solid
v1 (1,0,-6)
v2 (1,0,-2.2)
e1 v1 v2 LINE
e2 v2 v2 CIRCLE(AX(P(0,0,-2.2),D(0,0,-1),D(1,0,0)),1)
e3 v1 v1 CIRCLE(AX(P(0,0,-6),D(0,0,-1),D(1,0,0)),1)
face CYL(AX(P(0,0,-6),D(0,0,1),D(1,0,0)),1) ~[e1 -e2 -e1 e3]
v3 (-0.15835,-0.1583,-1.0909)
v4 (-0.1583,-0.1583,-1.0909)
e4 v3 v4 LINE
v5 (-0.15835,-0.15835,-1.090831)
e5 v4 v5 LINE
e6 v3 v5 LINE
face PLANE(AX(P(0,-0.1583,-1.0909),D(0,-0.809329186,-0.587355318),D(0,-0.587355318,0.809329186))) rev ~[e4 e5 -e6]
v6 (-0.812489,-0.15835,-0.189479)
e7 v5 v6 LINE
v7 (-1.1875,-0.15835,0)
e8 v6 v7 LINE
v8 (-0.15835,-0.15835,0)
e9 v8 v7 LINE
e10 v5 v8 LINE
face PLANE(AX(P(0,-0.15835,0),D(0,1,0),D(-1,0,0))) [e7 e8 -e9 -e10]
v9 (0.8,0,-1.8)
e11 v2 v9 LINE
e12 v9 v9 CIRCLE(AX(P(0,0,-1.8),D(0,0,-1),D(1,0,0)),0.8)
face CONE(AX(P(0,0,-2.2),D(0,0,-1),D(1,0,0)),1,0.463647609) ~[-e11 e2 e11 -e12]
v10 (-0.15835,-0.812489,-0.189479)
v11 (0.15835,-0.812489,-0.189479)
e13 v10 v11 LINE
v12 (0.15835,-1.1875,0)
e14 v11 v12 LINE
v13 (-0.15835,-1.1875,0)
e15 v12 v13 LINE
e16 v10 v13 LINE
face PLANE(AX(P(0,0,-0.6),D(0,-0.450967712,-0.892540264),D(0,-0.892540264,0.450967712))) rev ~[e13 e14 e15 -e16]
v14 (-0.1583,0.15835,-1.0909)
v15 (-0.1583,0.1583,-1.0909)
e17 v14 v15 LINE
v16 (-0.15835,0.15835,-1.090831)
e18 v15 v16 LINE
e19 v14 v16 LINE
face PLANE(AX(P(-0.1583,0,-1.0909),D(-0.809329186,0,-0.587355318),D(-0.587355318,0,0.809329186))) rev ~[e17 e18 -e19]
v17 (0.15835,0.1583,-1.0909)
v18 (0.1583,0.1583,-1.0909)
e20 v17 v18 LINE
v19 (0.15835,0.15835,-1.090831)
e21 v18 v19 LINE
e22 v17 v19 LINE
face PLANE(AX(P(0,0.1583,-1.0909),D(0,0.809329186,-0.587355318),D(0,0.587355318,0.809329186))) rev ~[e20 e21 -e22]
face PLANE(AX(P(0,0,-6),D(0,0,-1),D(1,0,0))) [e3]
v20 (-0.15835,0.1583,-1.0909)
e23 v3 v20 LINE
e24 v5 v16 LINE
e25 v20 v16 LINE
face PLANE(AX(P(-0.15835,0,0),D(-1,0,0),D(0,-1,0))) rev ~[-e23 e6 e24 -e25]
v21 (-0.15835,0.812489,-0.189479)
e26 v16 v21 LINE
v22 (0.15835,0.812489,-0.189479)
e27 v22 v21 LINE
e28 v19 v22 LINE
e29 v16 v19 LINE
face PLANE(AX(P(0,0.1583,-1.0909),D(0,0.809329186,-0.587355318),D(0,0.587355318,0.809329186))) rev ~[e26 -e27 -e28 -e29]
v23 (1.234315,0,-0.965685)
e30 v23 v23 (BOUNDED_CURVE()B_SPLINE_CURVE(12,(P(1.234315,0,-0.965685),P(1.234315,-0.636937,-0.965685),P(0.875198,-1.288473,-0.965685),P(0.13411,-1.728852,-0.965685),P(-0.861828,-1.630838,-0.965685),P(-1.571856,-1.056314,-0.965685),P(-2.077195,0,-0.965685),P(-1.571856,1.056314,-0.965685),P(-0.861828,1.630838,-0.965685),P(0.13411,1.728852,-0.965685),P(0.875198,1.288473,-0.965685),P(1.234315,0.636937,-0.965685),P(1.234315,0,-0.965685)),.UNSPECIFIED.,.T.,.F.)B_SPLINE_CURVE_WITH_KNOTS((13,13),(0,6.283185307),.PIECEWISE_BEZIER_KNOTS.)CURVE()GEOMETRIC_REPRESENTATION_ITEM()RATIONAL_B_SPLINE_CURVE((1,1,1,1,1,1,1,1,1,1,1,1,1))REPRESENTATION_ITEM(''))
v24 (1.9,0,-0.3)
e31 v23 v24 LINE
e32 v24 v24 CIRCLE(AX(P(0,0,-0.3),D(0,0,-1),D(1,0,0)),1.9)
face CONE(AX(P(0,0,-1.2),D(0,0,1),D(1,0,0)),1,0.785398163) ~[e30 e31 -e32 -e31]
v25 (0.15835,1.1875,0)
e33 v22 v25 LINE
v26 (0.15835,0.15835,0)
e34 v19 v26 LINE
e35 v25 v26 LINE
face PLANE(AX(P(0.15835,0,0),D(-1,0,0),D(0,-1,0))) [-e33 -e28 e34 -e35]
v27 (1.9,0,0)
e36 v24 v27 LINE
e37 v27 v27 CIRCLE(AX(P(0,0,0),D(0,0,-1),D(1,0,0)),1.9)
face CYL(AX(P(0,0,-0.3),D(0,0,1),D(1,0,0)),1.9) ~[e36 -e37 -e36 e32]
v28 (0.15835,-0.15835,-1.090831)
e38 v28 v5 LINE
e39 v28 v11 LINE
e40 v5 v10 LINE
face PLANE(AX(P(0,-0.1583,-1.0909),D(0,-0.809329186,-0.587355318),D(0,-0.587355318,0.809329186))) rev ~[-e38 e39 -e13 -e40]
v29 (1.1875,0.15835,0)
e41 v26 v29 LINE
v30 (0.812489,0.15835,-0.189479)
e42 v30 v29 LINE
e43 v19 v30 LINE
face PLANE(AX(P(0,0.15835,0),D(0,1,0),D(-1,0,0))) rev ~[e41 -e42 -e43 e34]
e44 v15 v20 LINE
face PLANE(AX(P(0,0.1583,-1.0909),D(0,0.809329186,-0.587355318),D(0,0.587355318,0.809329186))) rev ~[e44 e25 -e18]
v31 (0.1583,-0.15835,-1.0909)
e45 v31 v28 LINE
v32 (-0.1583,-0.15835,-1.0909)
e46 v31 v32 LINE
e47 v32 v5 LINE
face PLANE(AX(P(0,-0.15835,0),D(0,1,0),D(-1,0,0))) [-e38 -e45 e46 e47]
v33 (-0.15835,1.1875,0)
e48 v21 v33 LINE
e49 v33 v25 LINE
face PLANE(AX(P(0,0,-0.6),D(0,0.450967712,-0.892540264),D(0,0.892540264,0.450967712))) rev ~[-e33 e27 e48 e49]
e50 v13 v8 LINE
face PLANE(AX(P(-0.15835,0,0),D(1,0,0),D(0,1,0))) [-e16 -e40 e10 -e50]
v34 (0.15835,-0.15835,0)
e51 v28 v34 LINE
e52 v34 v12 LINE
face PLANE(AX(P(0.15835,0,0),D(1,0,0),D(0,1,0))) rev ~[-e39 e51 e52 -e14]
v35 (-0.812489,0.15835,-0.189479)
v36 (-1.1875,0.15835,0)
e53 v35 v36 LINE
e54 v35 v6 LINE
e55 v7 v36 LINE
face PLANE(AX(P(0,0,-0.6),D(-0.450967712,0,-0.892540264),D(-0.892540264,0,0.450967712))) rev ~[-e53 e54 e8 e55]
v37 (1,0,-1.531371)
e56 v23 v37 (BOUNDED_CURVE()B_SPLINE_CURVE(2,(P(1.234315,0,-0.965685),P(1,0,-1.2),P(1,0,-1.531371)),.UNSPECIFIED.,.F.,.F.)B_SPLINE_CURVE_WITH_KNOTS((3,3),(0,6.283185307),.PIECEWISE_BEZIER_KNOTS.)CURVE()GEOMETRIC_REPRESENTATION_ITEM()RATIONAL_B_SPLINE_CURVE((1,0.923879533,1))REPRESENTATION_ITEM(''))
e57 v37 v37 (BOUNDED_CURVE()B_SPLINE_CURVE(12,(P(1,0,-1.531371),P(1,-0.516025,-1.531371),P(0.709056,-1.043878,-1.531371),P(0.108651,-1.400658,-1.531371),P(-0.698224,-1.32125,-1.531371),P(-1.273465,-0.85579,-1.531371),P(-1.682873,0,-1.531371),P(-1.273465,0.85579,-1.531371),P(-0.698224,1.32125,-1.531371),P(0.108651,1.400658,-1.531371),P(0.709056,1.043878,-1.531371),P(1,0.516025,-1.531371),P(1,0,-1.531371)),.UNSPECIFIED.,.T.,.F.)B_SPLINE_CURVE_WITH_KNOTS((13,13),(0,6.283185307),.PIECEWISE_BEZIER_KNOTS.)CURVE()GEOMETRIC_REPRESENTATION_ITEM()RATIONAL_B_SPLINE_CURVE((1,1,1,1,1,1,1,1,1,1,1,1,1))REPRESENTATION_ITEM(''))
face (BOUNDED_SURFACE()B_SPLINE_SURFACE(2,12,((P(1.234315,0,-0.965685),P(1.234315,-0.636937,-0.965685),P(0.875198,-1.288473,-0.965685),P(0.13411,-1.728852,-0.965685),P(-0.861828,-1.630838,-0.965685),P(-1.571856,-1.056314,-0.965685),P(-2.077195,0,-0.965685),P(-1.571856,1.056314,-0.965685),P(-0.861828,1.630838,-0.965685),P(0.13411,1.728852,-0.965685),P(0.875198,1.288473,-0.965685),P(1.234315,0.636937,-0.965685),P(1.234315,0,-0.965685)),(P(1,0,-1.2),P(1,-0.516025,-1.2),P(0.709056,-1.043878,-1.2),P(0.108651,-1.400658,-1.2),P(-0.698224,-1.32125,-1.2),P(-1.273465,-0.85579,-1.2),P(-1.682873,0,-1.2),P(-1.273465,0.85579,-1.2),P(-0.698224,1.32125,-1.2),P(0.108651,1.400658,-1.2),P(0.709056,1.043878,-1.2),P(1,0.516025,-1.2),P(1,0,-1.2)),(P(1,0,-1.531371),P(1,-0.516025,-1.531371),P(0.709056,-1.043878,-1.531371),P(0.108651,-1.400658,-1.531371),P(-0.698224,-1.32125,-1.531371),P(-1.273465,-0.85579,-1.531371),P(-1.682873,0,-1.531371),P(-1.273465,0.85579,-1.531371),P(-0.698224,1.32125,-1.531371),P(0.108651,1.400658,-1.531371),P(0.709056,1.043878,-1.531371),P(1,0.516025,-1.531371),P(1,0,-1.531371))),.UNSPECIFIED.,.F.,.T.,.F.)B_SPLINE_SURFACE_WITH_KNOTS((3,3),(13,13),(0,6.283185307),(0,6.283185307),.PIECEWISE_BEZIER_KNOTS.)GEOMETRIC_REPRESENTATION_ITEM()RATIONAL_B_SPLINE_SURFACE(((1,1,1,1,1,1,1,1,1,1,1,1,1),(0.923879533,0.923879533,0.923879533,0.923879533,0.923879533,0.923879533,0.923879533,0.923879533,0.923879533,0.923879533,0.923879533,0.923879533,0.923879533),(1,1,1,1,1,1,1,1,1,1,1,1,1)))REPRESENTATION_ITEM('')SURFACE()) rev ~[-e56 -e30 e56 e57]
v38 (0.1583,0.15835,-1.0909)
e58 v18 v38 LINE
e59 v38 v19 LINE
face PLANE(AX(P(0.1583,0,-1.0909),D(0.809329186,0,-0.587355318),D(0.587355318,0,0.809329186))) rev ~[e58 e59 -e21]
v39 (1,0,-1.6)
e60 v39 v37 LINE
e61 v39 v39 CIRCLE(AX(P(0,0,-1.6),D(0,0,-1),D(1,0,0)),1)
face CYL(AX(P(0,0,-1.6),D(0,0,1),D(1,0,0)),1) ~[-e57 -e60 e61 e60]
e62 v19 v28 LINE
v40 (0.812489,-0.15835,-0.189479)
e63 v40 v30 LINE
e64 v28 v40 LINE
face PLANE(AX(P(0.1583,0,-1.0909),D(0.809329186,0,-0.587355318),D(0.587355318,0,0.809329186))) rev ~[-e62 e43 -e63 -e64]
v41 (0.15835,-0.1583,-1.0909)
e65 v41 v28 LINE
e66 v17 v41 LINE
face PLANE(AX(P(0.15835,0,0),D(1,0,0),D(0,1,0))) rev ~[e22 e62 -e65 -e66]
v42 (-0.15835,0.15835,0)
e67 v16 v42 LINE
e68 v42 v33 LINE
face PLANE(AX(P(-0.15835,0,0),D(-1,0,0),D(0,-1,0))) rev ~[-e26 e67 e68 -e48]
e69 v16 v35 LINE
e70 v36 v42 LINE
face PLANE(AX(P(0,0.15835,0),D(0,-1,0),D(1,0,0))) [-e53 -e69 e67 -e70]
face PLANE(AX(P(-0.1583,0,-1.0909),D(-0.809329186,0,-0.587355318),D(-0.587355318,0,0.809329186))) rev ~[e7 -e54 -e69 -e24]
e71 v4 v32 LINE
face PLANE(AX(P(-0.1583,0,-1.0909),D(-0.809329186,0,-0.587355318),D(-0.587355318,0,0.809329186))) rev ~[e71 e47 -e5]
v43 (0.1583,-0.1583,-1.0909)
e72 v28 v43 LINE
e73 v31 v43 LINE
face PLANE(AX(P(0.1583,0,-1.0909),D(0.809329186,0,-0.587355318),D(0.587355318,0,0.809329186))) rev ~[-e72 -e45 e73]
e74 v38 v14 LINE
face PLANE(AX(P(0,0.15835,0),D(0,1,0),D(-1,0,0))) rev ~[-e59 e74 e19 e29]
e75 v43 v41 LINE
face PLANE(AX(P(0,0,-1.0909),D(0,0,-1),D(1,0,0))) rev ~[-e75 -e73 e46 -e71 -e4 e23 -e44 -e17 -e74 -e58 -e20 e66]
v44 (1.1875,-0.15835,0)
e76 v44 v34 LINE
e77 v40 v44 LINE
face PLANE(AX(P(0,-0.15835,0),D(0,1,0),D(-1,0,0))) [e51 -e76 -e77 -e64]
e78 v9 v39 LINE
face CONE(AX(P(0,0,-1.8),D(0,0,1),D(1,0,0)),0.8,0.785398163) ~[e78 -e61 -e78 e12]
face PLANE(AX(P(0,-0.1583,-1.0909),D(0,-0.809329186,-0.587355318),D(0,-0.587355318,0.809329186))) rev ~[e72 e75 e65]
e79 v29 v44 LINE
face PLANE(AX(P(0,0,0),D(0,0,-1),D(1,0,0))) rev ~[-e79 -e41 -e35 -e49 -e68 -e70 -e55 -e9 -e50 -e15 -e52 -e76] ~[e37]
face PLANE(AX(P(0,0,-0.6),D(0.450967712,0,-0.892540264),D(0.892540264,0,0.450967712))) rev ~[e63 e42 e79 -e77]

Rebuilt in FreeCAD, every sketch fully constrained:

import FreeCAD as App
import Part
import Sketcher
Q = App.Units.Quantity


def edges_at(feature, points):
    """Names of the edges that pass closest to the given points."""
    edges = feature.Shape.Edges
    near = lambda p: min(range(len(edges)), key=lambda i: edges[i].distToShape(Part.Vertex(*p))[0])
    return sorted({f"Edge{near(p) + 1}" for p in points})

doc = App.newDocument("Part")
params = doc.addObject("Spreadsheet::Sheet", "Params")
for row, (alias, value) in enumerate([
    ("sketch1_width", "1 mm"),
    ("sketch1_height", "6 mm"),
    ("sketch1_width2", "1.9 mm"),
    ("sketch1_height2", "0.4 mm"),
    ("revolution_angle", "360 deg"),
    ("sketch2_width", "0.95 mm"),
    ("pocket1_length", "0.3167 mm"),
    ("sketch3_height", "0.6 mm"),
    ("pocket2_length", "0.3167 mm"),
    ("fillet_radius", "0.8 mm"),
], start=1):
    params.set(f"A{row}", alias)
    params.set(f"B{row}", "=" + value)
    params.setAlias(f"B{row}", alias)

body = doc.addObject("PartDesign::Body", "Body")

# Sketch on XZ plane
sketch1 = body.newObject("Sketcher::SketchObject", "Sketch")
sketch1.AttachmentSupport = (doc.getObject("XZ_Plane"), [""])
sketch1.MapMode = "FlatFace"
sketch1.addGeometry([
    Part.LineSegment(App.Vector(0, 0, 0), App.Vector(1.9, 0, 0)),  # 0
    Part.LineSegment(App.Vector(1.9, 0, 0), App.Vector(1.9, -0.3, 0)),  # 1
    Part.LineSegment(App.Vector(1.9, -0.3, 0), App.Vector(1, -1.2, 0)),  # 2
    Part.LineSegment(App.Vector(1, -1.2, 0), App.Vector(1, -1.6, 0)),  # 3
    Part.LineSegment(App.Vector(1, -1.6, 0), App.Vector(0.8, -1.8, 0)),  # 4
    Part.LineSegment(App.Vector(0.8, -1.8, 0), App.Vector(1, -2.2, 0)),  # 5
    Part.LineSegment(App.Vector(1, -2.2, 0), App.Vector(1, -6, 0)),  # 6
    Part.LineSegment(App.Vector(1, -6, 0), App.Vector(0, -6, 0)),  # 7
    Part.LineSegment(App.Vector(0, -6, 0), App.Vector(0, 0, 0)),  # 8
], False)
sketch1.addConstraint([
    Sketcher.Constraint("Coincident", 0, 2, 1, 1),
    Sketcher.Constraint("Coincident", 1, 2, 2, 1),
    Sketcher.Constraint("Coincident", 2, 2, 3, 1),
    Sketcher.Constraint("Coincident", 3, 2, 4, 1),
    Sketcher.Constraint("Coincident", 4, 2, 5, 1),
    Sketcher.Constraint("Coincident", 5, 2, 6, 1),
    Sketcher.Constraint("Coincident", 6, 2, 7, 1),
    Sketcher.Constraint("Coincident", 7, 2, 8, 1),
    Sketcher.Constraint("Coincident", 8, 2, 0, 1),
    Sketcher.Constraint("Horizontal", 0),
    Sketcher.Constraint("Vertical", 1),
    Sketcher.Constraint("Vertical", 3),
    Sketcher.Constraint("Vertical", 6),
    Sketcher.Constraint("Horizontal", 7),
    Sketcher.Constraint("Vertical", 8),
    Sketcher.Constraint("Coincident", 8, 2, -1, 1),
    Sketcher.Constraint("Parallel", 2, 4),
    Sketcher.Constraint("Vertical", 3, 2, 5, 2),
    Sketcher.Constraint("DistanceX", 7, 2, 7, 1, Q("1 mm")),
    Sketcher.Constraint("DistanceY", 8, 1, 8, 2, Q("6 mm")),
    Sketcher.Constraint("Angle", 2, Q("-135 deg")),
    Sketcher.Constraint("DistanceX", 0, 1, 0, 2, Q("1.9 mm")),
    Sketcher.Constraint("DistanceY", 3, 2, 3, 1, Q("0.4 mm")),
    Sketcher.Constraint("DistanceY", 5, 2, 2, 2, Q("1 mm")),
    Sketcher.Constraint("DistanceY", 2, 2, -1, 1, Q("1.2 mm")),
    Sketcher.Constraint("DistanceX", -1, 1, 4, 2, Q("0.8 mm")),
])
sketch1.setExpression("Constraints[18]", "Params.sketch1_width")
sketch1.setExpression("Constraints[19]", "Params.sketch1_height")
sketch1.setExpression("Constraints[21]", "Params.sketch1_width2")
sketch1.setExpression("Constraints[22]", "Params.sketch1_height2")
revolution = body.newObject("PartDesign::Revolution", "Revolution")
revolution.Profile = sketch1
revolution.ReferenceAxis = (sketch1, ["V_Axis"])
revolution.setExpression("Angle", "Params.revolution_angle")

# Sketch on XZ plane
sketch2 = body.newObject("Sketcher::SketchObject", "Sketch001")
sketch2.AttachmentSupport = (doc.getObject("XZ_Plane"), [""])
sketch2.MapMode = "FlatFace"
sketch2.addGeometry([
    Part.LineSegment(App.Vector(0, 0, 0), App.Vector(0.95, 0, 0)),
    Part.LineSegment(App.Vector(0.95, 0, 0), App.Vector(0.1583, -1.0909, 0)),
    Part.LineSegment(App.Vector(0.1583, -1.0909, 0), App.Vector(0, -1.0909, 0)),
    Part.LineSegment(App.Vector(0, -1.0909, 0), App.Vector(0, 0, 0)),
], False)
sketch2.addConstraint([
    Sketcher.Constraint("Coincident", 0, 2, 1, 1),
    Sketcher.Constraint("Coincident", 1, 2, 2, 1),
    Sketcher.Constraint("Coincident", 2, 2, 3, 1),
    Sketcher.Constraint("Coincident", 3, 2, 0, 1),
    Sketcher.Constraint("Horizontal", 0),
    Sketcher.Constraint("Horizontal", 2),
    Sketcher.Constraint("Vertical", 3),
    Sketcher.Constraint("Coincident", 3, 2, -1, 1),
    Sketcher.Constraint("DistanceX", 0, 1, 0, 2, Q("0.95 mm")),
    Sketcher.Constraint("DistanceY", 3, 1, 3, 2, Q("1.091 mm")),
    Sketcher.Constraint("DistanceX", 2, 2, 2, 1, Q("0.1583 mm")),
])
sketch2.setExpression("Constraints[8]", "Params.sketch2_width")
pocket1 = body.newObject("PartDesign::Pocket", "Pocket")
pocket1.Profile = sketch2
pocket1.setExpression("Length", "Params.pocket1_length")
pocket1.Midplane = True
doc.recompute()

polarpattern = body.newObject("PartDesign::PolarPattern", "PolarPattern")
polarpattern.Originals = [pocket1]
polarpattern.Axis = (doc.getObject("Z_Axis"), [""])
polarpattern.Angle = 360
polarpattern.Occurrences = 4
body.Tip = polarpattern

# Sketch on XZ plane
sketch3 = body.newObject("Sketcher::SketchObject", "Sketch002")
sketch3.AttachmentSupport = (doc.getObject("XZ_Plane"), [""])
sketch3.MapMode = "FlatFace"
sketch3.addGeometry([
    Part.LineSegment(App.Vector(1.1875, 0, 0), App.Vector(0, -0.6, 0)),
    Part.LineSegment(App.Vector(0, -0.6, 0), App.Vector(0, 0, 0)),
    Part.LineSegment(App.Vector(0, 0, 0), App.Vector(1.1875, 0, 0)),
], False)
sketch3.addConstraint([
    Sketcher.Constraint("Coincident", 0, 2, 1, 1),
    Sketcher.Constraint("Coincident", 1, 2, 2, 1),
    Sketcher.Constraint("Coincident", 2, 2, 0, 1),
    Sketcher.Constraint("Vertical", 1),
    Sketcher.Constraint("Horizontal", 2),
    Sketcher.Constraint("Coincident", 1, 2, -1, 1),
    Sketcher.Constraint("DistanceY", 1, 1, 1, 2, Q("0.6 mm")),
    Sketcher.Constraint("DistanceX", 2, 1, 2, 2, Q("1.1875 mm")),
])
sketch3.setExpression("Constraints[6]", "Params.sketch3_height")
pocket2 = body.newObject("PartDesign::Pocket", "Pocket001")
pocket2.Profile = sketch3
pocket2.setExpression("Length", "Params.pocket2_length")
pocket2.Midplane = True
doc.recompute()

polarpattern2 = body.newObject("PartDesign::PolarPattern", "PolarPattern001")
polarpattern2.Originals = [pocket2]
polarpattern2.Axis = (doc.getObject("Z_Axis"), [""])
polarpattern2.Angle = 360
polarpattern2.Occurrences = 4
body.Tip = polarpattern2
doc.recompute()

fillet = body.newObject("PartDesign::Fillet", "Fillet")
fillet.Base = (polarpattern2, edges_at(polarpattern2, [(-1, 0, -1.2)]))
fillet.setExpression("Radius", "Params.fillet_radius")

doc.recompute()
